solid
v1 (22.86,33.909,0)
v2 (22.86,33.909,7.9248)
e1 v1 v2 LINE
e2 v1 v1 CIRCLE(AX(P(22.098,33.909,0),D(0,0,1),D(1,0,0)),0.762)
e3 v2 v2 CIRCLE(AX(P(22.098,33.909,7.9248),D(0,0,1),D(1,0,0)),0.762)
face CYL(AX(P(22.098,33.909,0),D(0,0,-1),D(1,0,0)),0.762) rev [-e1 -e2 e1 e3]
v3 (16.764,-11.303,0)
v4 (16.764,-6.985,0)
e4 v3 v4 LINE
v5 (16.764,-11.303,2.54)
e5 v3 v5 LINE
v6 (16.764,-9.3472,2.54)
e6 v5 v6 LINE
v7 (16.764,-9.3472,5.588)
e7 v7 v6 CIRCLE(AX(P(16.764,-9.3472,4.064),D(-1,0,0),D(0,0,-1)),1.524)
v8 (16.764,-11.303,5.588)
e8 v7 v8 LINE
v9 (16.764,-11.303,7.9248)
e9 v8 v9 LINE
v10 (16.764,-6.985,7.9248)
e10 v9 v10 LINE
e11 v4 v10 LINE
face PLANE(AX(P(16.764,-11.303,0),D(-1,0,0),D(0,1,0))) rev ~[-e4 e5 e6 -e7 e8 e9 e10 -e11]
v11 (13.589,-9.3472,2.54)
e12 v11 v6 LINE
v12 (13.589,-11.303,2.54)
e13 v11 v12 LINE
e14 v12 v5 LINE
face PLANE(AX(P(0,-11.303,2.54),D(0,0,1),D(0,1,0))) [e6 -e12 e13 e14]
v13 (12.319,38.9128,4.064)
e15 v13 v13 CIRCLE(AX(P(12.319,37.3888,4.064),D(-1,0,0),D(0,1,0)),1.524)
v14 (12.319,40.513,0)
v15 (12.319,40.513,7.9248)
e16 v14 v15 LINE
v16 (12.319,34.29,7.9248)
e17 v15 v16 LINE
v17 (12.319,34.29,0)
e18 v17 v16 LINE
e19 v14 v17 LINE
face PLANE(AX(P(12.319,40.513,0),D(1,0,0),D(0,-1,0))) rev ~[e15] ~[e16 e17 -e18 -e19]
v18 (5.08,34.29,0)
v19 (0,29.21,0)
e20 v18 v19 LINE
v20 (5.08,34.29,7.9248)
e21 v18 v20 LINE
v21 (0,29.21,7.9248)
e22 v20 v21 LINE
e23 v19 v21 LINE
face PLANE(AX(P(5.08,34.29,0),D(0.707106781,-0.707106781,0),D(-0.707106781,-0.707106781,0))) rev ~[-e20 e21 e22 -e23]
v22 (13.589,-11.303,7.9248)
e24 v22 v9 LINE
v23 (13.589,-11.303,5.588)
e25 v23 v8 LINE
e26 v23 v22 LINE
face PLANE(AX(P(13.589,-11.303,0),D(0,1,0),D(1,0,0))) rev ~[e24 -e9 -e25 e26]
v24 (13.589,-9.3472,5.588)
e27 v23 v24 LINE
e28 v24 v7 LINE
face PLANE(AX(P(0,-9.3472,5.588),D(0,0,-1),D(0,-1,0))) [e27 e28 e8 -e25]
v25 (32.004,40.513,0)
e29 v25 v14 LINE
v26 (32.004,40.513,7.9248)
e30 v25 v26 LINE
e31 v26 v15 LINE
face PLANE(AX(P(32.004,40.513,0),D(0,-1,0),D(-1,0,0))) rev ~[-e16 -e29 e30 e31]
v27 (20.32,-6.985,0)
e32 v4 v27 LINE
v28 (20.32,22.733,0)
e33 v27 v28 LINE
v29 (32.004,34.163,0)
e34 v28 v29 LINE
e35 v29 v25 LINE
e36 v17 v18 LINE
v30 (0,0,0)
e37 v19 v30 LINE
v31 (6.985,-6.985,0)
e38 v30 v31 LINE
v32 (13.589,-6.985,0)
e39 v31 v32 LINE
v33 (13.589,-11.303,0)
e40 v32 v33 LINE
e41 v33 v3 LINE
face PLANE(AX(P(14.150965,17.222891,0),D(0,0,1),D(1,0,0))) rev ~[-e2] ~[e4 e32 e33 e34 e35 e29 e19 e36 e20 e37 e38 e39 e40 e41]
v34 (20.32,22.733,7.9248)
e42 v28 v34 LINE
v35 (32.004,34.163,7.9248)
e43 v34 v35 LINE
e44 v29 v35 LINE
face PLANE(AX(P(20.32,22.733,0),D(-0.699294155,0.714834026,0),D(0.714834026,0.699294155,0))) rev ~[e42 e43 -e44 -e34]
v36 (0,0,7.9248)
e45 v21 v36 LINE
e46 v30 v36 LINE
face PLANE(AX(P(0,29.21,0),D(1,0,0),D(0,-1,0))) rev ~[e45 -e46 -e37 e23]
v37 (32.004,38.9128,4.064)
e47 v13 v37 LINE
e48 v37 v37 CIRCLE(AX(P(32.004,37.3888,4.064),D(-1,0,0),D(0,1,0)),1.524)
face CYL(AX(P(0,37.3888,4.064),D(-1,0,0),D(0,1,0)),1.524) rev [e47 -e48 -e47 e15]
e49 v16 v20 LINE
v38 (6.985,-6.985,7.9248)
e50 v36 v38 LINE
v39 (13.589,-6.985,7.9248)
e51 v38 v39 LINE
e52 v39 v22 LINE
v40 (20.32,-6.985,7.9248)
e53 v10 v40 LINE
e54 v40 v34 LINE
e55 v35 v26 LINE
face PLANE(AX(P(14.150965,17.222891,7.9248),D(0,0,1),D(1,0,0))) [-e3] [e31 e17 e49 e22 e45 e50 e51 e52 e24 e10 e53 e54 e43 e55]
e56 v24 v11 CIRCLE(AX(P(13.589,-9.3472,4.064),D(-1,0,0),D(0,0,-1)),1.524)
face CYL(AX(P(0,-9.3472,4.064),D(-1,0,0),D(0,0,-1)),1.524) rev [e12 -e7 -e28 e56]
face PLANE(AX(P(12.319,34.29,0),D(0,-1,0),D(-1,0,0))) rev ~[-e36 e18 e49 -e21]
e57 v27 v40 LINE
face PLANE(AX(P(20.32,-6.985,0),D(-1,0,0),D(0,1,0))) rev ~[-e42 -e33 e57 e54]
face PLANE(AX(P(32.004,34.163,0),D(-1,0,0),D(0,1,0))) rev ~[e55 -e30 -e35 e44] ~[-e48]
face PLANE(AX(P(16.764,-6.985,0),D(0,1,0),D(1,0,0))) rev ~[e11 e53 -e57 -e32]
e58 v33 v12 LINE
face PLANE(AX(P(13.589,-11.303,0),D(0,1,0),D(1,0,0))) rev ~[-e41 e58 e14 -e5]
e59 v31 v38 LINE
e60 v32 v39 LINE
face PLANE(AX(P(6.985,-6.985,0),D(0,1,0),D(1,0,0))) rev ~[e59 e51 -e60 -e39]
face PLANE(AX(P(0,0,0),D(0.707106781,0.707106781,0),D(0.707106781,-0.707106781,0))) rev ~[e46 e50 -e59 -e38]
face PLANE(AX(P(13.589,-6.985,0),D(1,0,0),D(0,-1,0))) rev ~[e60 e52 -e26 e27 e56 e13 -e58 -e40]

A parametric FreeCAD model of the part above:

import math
import FreeCAD as App
import Part
import Sketcher
from FreeCAD import Vector
Q = App.Units.Quantity

doc = App.newDocument("Part")
body = doc.addObject("PartDesign::Body", "Body")

sketch1 = body.newObject("Sketcher::SketchObject", "Sketch")
sketch1.AttachmentSupport = (doc.getObject("XY_Plane"), [""])
sketch1.MapMode = "FlatFace"
sketch1.addGeometry([
    Part.LineSegment(Vector(32, 34.2, 0), Vector(32, 40.5, 0)),
    Part.LineSegment(Vector(32, 40.5, 0), Vector(12.3, 40.5, 0)),
    Part.LineSegment(Vector(12.3, 40.5, 0), Vector(12.3, 34.3, 0)),
    Part.LineSegment(Vector(12.3, 34.3, 0), Vector(5.1, 34.3, 0)),
    Part.LineSegment(Vector(5.1, 34.3, 0), Vector(0, 29.2, 0)),
    Part.LineSegment(Vector(0, 29.2, 0), Vector(0, 0, 0)),
    Part.LineSegment(Vector(0, 0, 0), Vector(7, -7, 0)),
    Part.LineSegment(Vector(7, -7, 0), Vector(13.6, -7, 0)),
    Part.LineSegment(Vector(13.6, -7, 0), Vector(13.6, -11.3, 0)),
    Part.LineSegment(Vector(13.6, -11.3, 0), Vector(16.8, -11.3, 0)),
    Part.LineSegment(Vector(16.8, -11.3, 0), Vector(16.8, -7, 0)),
    Part.LineSegment(Vector(16.8, -7, 0), Vector(20.3, -7, 0)),
    Part.LineSegment(Vector(20.3, -7, 0), Vector(20.3, 22.7, 0)),
    Part.LineSegment(Vector(20.3, 22.7, 0), Vector(32, 34.2, 0)),
    Part.Circle(Vector(22.1, 33.9, 0), Vector(0, 0, 1), 0.8),
], False)
sketch1.addConstraint([
    Sketcher.Constraint("Coincident", 0, 2, 1, 1),
    Sketcher.Constraint("Coincident", 1, 2, 2, 1),
    Sketcher.Constraint("Coincident", 2, 2, 3, 1),
    Sketcher.Constraint("Coincident", 3, 2, 4, 1),
    Sketcher.Constraint("Coincident", 4, 2, 5, 1),
    Sketcher.Constraint("Coincident", 5, 2, 6, 1),
    Sketcher.Constraint("Coincident", 6, 2, 7, 1),
    Sketcher.Constraint("Coincident", 7, 2, 8, 1),
    Sketcher.Constraint("Coincident", 8, 2, 9, 1),
    Sketcher.Constraint("Coincident", 9, 2, 10, 1),
    Sketcher.Constraint("Coincident", 10, 2, 11, 1),
    Sketcher.Constraint("Coincident", 11, 2, 12, 1),
    Sketcher.Constraint("Coincident", 12, 2, 13, 1),
    Sketcher.Constraint("Coincident", 13, 2, 0, 1),
    Sketcher.Constraint("Vertical", 0),
    Sketcher.Constraint("Horizontal", 1),
    Sketcher.Constraint("Vertical", 2),
    Sketcher.Constraint("Horizontal", 3),
    Sketcher.Constraint("Vertical", 5),
    Sketcher.Constraint("Horizontal", 7),
    Sketcher.Constraint("Vertical", 8),
    Sketcher.Constraint("Horizontal", 9),
    Sketcher.Constraint("Vertical", 10),
    Sketcher.Constraint("Horizontal", 11),
    Sketcher.Constraint("Vertical", 12),
    Sketcher.Constraint("Coincident", 5, 2, -1, 1),
    Sketcher.Constraint("Perpendicular", 4, 6),
    Sketcher.Constraint("Horizontal", 7, 2, 10, 2),
    Sketcher.Constraint("Diameter", 14, Q("0.06 in")),
    Sketcher.Constraint("Angle", 4, Q("-135 deg")),
    Sketcher.Constraint("DistanceX", 7, 1, 7, 2, Q("0.26 in")),
    Sketcher.Constraint("DistanceX", 11, 1, 11, 2, Q("0.14 in")),
    Sketcher.Constraint("DistanceY", 0, 1, 0, 2, Q("0.25 in")),
    Sketcher.Constraint("DistanceY", 5, 2, 5, 1, Q("1.15 in")),
    Sketcher.Constraint("DistanceY", 8, 2, 8, 1, Q("0.17 in")),
    Sketcher.Constraint("DistanceY", 12, 1, 12, 2, Q("1.17 in")),
    Sketcher.Constraint("DistanceX", -1, 1, 3, 2, Q("0.2 in")),
    Sketcher.Constraint("DistanceX", -1, 1, 11, 2, Q("0.8 in")),
    Sketcher.Constraint("DistanceY", 12, 2, 1, 2, Q("0.7 in")),
    Sketcher.Constraint("DistanceX", 1, 2, 1, 1, Q("0.775 in")),
    Sketcher.Constraint("DistanceX", 3, 2, 3, 1, Q("0.285 in")),
    Sketcher.Constraint("DistanceX", 9, 1, 9, 2, Q("0.125 in")),
    Sketcher.Constraint("DistanceX", -1, 1, 14, 3, Q("0.87 in")),
    Sketcher.Constraint("DistanceY", 14, 3, 0, 2, Q("0.26 in")),
])
pad1 = body.newObject("PartDesign::Pad", "Pad")
pad1.Profile = sketch1
pad1.Length = Q("0.312 in")

sketch2 = body.newObject("Sketcher::SketchObject", "Sketch001")
sketch2.AttachmentSupport = (doc.getObject("YZ_Plane"), [""])
sketch2.MapMode = "FlatFace"
sketch2.addGeometry([
    Part.Circle(Vector(37.4, 4.1, 0), Vector(0, 0, 1), 1.5),
    Part.LineSegment(Vector(-11.3, 2.5, 0), Vector(-9.3, 2.5, 0)),
    Part.ArcOfCircle(Part.Circle(Vector(-9.3, 4.1, 0), Vector(0, 0, 1), 1.5), math.radians(-90), math.radians(90)),
    Part.LineSegment(Vector(-9.3, 5.6, 0), Vector(-11.3, 5.6, 0)),
    Part.LineSegment(Vector(-11.3, 5.6, 0), Vector(-11.3, 2.5, 0)),
], False)
sketch2.addConstraint([
    Sketcher.Constraint("Tangent", 1, 2, 2, 1),
    Sketcher.Constraint("Tangent", 2, 2, 3, 1),
    Sketcher.Constraint("Coincident", 3, 2, 4, 1),
    Sketcher.Constraint("Coincident", 4, 2, 1, 1),
    Sketcher.Constraint("Horizontal", 1),
    Sketcher.Constraint("Horizontal", 3),
    Sketcher.Constraint("Vertical", 4),
    Sketcher.Constraint("Equal", 0, 2),
    Sketcher.Constraint("Horizontal", 0, 3, 2, 3),
    Sketcher.Constraint("Diameter", 0, Q("0.12 in")),
    Sketcher.Constraint("DistanceY", -1, 1, 1, 2, Q("0.1 in")),
    Sketcher.Constraint("DistanceX", 1, 1, 1, 2, Q("0.077 in")),
    Sketcher.Constraint("DistanceX", 2, 3, 0, 3, Q("1.84 in")),
    Sketcher.Constraint("DistanceX", -1, 1, 0, 3, Q("1.472 in")),
])
pocket1 = body.newObject("PartDesign::Pocket", "Pocket")
pocket1.Profile = sketch2
pocket1.Type = "ThroughAll"
pocket1.Reversed = True

doc.recompute()
